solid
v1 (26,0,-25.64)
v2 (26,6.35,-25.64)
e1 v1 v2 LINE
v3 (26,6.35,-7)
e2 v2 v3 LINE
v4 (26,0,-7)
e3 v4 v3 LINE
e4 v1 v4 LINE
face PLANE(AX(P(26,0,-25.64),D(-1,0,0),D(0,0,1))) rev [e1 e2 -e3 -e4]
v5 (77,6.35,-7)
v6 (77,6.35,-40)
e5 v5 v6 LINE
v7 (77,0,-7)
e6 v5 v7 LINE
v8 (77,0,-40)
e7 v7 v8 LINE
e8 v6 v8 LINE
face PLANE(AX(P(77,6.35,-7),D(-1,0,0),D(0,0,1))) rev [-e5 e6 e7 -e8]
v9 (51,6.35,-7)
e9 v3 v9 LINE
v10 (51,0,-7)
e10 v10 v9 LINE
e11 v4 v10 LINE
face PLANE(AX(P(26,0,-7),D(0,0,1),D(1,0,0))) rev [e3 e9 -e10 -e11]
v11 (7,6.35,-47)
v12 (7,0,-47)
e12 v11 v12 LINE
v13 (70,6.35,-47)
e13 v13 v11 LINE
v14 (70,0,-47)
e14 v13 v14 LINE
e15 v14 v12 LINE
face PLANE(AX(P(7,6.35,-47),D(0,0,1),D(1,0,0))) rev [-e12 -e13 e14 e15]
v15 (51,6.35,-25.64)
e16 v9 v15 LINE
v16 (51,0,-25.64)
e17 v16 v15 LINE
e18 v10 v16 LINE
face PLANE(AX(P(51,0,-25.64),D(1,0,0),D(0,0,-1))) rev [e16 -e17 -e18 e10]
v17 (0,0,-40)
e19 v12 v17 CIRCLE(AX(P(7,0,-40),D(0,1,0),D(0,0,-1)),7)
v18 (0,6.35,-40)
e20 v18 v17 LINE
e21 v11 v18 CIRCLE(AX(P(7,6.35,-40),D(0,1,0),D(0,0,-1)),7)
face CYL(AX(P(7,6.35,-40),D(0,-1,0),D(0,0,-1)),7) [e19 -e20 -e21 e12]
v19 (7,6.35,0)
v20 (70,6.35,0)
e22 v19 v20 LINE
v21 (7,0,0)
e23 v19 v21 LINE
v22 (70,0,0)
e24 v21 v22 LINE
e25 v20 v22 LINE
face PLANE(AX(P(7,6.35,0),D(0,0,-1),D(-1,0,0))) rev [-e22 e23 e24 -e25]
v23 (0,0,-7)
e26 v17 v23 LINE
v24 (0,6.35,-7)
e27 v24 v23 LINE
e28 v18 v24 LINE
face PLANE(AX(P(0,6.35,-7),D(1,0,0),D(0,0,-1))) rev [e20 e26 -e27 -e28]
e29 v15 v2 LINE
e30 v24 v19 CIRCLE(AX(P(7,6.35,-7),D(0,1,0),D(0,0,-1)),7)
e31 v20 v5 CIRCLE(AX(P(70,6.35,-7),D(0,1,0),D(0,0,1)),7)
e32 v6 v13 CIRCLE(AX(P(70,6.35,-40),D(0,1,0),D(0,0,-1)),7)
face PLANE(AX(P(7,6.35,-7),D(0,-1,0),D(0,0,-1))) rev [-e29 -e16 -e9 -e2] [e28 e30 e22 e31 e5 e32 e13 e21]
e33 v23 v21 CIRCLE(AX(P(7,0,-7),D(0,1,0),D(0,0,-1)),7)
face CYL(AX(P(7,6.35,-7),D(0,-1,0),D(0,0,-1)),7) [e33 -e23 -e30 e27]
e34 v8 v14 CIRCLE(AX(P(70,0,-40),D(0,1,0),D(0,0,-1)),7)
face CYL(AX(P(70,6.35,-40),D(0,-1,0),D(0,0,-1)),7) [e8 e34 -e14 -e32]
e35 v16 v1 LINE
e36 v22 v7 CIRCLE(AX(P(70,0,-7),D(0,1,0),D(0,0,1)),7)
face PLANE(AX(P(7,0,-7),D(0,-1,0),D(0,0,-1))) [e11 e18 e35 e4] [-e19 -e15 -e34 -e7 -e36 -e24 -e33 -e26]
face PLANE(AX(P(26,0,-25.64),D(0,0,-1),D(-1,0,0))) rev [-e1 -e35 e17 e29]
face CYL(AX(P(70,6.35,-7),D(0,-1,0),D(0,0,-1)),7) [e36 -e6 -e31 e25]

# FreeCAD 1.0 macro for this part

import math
import FreeCAD as App
import Part
import Sketcher
Q = App.Units.Quantity


def add_polygon(sketch, points):
    """Adds a closed chain of lines whose ends are joined by coincident constraints."""
    first, n = sketch.GeometryCount, len(points)
    for a, b in zip(points, points[1:] + points[:1]):
        sketch.addGeometry(Part.LineSegment(App.Vector(*a, 0), App.Vector(*b, 0)), False)
    for i in range(n):
        sketch.addConstraint(Sketcher.Constraint("Coincident", first + i, 2, first + (i + 1) % n, 1))

doc = App.newDocument("Part")
body = doc.addObject("PartDesign::Body", "Body")

# Sketch on XZ plane
sketch1 = body.newObject("Sketcher::SketchObject", "Sketch")
sketch1.AttachmentSupport = (doc.getObject("XZ_Plane"), [""])
sketch1.MapMode = "FlatFace"
sketch1.addGeometry(Part.LineSegment(App.Vector(7, 0, 0), App.Vector(70, 0, 0)), False)
sketch1.addGeometry(Part.ArcOfCircle(Part.Circle(App.Vector(70, -7, 0), App.Vector(0, 0, 1), 7), math.radians(0), math.radians(90)), False)
sketch1.addGeometry(Part.LineSegment(App.Vector(77, -7, 0), App.Vector(77, -40, 0)), False)
sketch1.addGeometry(Part.ArcOfCircle(Part.Circle(App.Vector(70, -40, 0), App.Vector(0, 0, 1), 7), math.radians(-90), math.radians(0)), False)
sketch1.addGeometry(Part.LineSegment(App.Vector(70, -47, 0), App.Vector(7, -47, 0)), False)
sketch1.addGeometry(Part.ArcOfCircle(Part.Circle(App.Vector(7, -40, 0), App.Vector(0, 0, 1), 7), math.radians(-180), math.radians(-90)), False)
sketch1.addGeometry(Part.LineSegment(App.Vector(0, -40, 0), App.Vector(0, -7, 0)), False)
sketch1.addGeometry(Part.ArcOfCircle(Part.Circle(App.Vector(7, -7, 0), App.Vector(0, 0, 1), 7), math.radians(90), math.radians(180)), False)
sketch1.addConstraint(Sketcher.Constraint("Tangent", 0, 2, 1, 2))
sketch1.addConstraint(Sketcher.Constraint("Tangent", 1, 1, 2, 1))
sketch1.addConstraint(Sketcher.Constraint("Tangent", 2, 2, 3, 2))
sketch1.addConstraint(Sketcher.Constraint("Tangent", 3, 1, 4, 1))
sketch1.addConstraint(Sketcher.Constraint("Tangent", 4, 2, 5, 2))
sketch1.addConstraint(Sketcher.Constraint("Tangent", 5, 1, 6, 1))
sketch1.addConstraint(Sketcher.Constraint("Tangent", 6, 2, 7, 2))
sketch1.addConstraint(Sketcher.Constraint("Tangent", 7, 1, 0, 1))
sketch1.addConstraint(Sketcher.Constraint("Horizontal", 0))
sketch1.addConstraint(Sketcher.Constraint("Vertical", 2))
sketch1.addConstraint(Sketcher.Constraint("Horizontal", 4))
sketch1.addConstraint(Sketcher.Constraint("Vertical", 6))
sketch1.addConstraint(Sketcher.Constraint("Equal", 1, 3))
sketch1.addConstraint(Sketcher.Constraint("Equal", 3, 5))
sketch1.addConstraint(Sketcher.Constraint("Equal", 5, 7))
sketch1.addConstraint(Sketcher.Constraint("PointOnObject", 0, 2, -1))
sketch1.addConstraint(Sketcher.Constraint("PointOnObject", 5, 1, -2))
sketch1.addConstraint(Sketcher.Constraint("Radius", 1, Q("7 mm")))
sketch1.addConstraint(Sketcher.Constraint("DistanceX", 0, 1, 0, 2, Q("63 mm")))
sketch1.addConstraint(Sketcher.Constraint("DistanceY", 2, 2, 2, 1, Q("33 mm")))
pad1 = body.newObject("PartDesign::Pad", "Pad")
pad1.Profile = sketch1
pad1.Length = 6.35
pad1.Reversed = True

# Sketch on XZ plane
sketch2 = body.newObject("Sketcher::SketchObject", "Sketch001")
sketch2.AttachmentSupport = (doc.getObject("XZ_Plane"), [""])
sketch2.MapMode = "FlatFace"
sketch2.AttachmentOffset = App.Placement(App.Vector(0, 0, -6.35), App.Rotation())
add_polygon(sketch2, [(26, -26), (26, -7), (51, -7), (51, -26)])  # lines 0-3
sketch2.addConstraint(Sketcher.Constraint("Vertical", 0))
sketch2.addConstraint(Sketcher.Constraint("Horizontal", 1))
sketch2.addConstraint(Sketcher.Constraint("Vertical", 2))
sketch2.addConstraint(Sketcher.Constraint("Horizontal", 3))
sketch2.addConstraint(Sketcher.Constraint("DistanceX", 1, 1, 1, 2, Q("25 mm")))
sketch2.addConstraint(Sketcher.Constraint("DistanceX", -1, 1, 0, 2, Q("26 mm")))
sketch2.addConstraint(Sketcher.Constraint("DistanceY", 0, 2, -1, 1, Q("7 mm")))
sketch2.addConstraint(Sketcher.Constraint("DistanceY", 0, 1, 0, 2, Q("18.64 mm")))
pocket1 = body.newObject("PartDesign::Pocket", "Pocket")
pocket1.Profile = sketch2
pocket1.Type = "ThroughAll"
pocket1.Reversed = True

doc.recompute()
